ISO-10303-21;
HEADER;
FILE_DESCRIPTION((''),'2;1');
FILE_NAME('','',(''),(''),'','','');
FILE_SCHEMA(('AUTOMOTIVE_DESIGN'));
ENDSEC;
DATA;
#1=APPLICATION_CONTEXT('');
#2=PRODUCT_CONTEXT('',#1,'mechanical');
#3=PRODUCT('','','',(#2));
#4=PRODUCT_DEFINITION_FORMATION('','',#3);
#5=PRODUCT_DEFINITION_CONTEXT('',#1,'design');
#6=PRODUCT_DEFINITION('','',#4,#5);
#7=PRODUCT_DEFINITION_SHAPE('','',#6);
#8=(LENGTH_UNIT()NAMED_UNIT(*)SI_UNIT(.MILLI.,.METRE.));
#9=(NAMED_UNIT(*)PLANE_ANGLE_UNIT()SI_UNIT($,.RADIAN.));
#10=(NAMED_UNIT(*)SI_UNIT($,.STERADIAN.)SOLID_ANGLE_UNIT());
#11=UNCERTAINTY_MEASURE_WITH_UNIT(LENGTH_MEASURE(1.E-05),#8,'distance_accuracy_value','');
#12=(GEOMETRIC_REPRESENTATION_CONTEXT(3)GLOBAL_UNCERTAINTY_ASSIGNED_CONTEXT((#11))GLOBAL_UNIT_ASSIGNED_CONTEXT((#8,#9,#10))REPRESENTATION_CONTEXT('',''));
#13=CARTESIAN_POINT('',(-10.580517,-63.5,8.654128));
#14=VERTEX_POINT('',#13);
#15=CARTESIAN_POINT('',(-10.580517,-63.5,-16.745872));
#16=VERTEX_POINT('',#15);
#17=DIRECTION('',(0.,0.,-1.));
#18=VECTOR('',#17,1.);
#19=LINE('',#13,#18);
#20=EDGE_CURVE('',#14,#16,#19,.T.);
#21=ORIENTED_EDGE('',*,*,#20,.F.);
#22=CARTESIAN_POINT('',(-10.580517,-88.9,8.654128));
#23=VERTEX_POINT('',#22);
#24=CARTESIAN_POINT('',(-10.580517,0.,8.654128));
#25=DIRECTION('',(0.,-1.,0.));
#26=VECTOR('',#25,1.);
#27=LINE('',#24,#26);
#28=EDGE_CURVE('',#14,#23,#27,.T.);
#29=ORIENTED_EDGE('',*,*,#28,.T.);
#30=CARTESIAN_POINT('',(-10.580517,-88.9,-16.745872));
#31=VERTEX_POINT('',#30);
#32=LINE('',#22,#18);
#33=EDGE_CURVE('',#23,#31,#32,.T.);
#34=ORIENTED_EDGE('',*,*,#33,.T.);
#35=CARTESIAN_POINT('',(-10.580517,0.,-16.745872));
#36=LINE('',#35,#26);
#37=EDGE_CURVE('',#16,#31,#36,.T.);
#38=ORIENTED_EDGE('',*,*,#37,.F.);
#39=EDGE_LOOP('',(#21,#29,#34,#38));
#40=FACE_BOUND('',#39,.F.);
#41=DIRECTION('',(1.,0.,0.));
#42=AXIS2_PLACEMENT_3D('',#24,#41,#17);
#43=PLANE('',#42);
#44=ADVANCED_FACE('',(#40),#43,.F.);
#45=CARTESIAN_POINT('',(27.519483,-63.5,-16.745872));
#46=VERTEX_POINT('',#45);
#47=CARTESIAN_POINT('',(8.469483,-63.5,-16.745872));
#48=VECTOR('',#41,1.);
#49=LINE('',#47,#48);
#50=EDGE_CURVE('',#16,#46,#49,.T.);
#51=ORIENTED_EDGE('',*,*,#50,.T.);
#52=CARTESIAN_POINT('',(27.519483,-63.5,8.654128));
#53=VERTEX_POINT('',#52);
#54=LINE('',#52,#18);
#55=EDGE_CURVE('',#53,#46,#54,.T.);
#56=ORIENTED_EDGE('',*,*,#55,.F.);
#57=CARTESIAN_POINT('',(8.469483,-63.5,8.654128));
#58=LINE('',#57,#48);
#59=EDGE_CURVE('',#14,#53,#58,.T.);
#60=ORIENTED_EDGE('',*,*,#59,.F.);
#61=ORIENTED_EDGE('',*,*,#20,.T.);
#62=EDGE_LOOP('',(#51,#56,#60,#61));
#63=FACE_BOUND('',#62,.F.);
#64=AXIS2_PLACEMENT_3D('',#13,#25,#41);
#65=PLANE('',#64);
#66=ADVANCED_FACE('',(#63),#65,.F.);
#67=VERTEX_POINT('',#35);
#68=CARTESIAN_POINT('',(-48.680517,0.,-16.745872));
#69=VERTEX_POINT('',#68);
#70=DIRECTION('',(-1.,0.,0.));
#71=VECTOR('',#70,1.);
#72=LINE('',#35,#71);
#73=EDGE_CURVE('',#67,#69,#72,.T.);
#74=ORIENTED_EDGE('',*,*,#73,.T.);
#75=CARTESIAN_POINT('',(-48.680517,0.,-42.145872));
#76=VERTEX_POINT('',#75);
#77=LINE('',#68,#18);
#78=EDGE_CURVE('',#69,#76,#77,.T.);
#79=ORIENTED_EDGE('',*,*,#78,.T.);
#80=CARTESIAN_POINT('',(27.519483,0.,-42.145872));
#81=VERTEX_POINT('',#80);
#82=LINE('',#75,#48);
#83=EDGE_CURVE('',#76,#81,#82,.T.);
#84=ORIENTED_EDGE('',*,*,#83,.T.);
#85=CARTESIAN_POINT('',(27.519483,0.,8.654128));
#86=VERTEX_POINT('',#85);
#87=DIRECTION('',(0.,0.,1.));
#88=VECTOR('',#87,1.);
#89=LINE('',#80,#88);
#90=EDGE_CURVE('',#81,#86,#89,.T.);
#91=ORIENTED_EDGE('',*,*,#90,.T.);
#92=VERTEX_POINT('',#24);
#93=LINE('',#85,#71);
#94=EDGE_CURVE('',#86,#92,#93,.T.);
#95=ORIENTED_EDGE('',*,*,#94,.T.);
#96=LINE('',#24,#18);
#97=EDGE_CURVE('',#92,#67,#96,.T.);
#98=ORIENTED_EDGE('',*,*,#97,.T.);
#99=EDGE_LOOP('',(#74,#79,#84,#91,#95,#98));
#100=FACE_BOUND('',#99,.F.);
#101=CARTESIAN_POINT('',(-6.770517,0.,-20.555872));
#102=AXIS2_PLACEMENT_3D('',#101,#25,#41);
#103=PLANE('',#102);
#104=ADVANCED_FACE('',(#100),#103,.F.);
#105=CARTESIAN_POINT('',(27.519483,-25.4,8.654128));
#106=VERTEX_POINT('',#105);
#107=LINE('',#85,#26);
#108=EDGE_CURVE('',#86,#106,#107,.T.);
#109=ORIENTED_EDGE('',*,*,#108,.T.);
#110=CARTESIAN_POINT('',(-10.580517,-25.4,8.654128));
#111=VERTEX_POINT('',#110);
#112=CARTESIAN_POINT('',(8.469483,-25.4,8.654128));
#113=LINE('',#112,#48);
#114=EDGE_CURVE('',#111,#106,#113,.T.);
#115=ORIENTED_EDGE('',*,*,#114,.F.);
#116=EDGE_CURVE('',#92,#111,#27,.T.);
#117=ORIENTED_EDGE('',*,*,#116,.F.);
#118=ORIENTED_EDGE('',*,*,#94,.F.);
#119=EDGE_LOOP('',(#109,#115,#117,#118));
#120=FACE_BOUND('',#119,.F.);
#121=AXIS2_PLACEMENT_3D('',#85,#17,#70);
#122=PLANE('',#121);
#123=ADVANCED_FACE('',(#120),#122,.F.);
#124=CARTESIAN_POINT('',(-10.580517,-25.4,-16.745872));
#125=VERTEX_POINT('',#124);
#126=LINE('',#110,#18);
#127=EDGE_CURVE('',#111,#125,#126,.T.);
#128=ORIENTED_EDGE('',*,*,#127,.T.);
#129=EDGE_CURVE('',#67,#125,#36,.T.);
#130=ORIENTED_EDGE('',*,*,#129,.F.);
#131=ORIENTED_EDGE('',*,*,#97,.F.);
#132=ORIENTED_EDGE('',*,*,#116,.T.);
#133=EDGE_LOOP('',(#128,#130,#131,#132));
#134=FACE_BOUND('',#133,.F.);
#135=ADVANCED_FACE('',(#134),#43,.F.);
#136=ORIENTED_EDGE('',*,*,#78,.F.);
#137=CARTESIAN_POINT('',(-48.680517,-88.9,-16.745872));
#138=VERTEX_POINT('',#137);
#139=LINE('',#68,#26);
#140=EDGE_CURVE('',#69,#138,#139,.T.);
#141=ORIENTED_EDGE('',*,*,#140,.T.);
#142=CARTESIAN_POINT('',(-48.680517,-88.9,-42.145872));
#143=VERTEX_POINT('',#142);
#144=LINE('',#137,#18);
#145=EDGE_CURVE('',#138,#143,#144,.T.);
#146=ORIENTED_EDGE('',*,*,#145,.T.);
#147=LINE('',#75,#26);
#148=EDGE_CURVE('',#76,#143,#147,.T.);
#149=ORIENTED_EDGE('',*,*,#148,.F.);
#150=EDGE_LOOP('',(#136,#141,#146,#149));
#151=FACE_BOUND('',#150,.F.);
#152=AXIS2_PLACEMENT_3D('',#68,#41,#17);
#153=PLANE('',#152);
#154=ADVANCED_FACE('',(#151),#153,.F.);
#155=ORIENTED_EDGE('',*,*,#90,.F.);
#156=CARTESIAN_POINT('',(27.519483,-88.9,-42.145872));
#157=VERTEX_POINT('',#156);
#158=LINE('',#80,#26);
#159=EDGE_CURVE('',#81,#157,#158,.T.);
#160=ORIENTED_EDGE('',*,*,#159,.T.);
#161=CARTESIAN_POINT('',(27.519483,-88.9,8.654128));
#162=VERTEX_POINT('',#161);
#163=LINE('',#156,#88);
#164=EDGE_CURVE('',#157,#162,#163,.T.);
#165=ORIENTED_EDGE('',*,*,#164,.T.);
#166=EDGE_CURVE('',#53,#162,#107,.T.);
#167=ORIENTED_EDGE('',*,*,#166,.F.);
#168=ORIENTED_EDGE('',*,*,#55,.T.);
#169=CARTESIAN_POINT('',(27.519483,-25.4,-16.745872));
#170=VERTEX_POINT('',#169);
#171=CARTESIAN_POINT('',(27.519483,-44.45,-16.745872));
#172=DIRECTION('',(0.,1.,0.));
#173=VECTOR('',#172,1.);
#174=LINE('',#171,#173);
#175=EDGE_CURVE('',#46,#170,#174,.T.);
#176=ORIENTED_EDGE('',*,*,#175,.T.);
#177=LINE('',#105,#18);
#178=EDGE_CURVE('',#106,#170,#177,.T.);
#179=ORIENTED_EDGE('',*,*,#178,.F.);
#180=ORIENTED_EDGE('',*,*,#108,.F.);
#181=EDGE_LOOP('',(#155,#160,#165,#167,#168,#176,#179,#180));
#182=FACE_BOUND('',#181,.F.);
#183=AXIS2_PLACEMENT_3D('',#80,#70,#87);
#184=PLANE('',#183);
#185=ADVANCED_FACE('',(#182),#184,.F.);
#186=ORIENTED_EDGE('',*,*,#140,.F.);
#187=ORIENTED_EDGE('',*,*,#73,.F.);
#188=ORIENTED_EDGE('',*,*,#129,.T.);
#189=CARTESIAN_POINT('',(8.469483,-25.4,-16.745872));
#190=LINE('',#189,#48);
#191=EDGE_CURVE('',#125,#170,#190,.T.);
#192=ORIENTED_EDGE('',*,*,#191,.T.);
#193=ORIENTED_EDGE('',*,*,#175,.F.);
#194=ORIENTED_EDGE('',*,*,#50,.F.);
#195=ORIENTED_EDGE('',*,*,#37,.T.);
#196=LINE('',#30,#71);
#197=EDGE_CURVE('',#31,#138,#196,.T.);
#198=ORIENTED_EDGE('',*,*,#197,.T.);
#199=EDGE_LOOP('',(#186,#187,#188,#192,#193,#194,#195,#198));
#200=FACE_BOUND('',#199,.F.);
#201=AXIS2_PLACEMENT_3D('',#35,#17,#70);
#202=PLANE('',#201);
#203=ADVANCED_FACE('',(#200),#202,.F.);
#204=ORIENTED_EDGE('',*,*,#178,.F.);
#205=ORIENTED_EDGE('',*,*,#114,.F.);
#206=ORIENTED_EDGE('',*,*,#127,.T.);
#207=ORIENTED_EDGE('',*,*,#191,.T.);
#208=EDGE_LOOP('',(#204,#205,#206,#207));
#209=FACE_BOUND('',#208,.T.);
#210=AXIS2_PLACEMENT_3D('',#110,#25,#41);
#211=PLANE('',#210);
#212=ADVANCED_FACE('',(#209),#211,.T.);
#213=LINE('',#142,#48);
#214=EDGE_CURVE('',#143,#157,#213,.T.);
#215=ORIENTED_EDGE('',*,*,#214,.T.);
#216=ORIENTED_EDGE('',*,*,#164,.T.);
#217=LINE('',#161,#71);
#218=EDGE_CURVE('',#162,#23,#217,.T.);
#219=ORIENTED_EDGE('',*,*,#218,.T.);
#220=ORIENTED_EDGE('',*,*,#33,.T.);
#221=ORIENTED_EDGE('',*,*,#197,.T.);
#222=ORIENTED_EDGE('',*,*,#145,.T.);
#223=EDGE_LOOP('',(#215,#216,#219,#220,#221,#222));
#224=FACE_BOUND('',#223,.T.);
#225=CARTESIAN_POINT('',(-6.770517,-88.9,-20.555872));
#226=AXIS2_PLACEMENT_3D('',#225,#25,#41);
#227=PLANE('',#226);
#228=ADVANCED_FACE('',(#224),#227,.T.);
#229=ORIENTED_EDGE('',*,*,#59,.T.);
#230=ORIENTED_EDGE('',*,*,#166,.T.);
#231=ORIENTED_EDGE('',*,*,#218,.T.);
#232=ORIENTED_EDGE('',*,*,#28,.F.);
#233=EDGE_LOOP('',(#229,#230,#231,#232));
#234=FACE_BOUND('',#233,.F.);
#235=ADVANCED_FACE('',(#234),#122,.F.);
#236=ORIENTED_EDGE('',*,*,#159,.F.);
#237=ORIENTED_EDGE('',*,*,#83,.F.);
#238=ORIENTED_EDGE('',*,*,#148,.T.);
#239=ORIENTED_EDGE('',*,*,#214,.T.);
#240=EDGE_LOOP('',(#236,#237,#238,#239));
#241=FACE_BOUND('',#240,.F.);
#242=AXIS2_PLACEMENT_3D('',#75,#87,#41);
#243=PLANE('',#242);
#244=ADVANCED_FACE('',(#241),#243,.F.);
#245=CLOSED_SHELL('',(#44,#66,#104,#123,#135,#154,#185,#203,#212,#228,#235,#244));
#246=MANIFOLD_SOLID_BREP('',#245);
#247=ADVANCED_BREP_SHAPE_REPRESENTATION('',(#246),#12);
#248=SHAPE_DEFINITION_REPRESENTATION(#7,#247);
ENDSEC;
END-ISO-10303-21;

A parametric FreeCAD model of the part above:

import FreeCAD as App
import Part
import Sketcher
from FreeCAD import Vector
Q = App.Units.Quantity

doc = App.newDocument("Part")
params = doc.addObject("Spreadsheet::Sheet", "Params")
for row, (alias, value) in enumerate([
    ("sketch1_width", "3 in"),
    ("sketch1_height", "1 in"),
    ("pad1_length", "3.5 in"),
    ("sketch2_width", "1.5 in"),
    ("pocket1_length", "1 in"),
], start=1):
    params.set(f"A{row}", alias)
    params.set(f"B{row}", "=" + value)
    params.setAlias(f"B{row}", alias)

body = doc.addObject("PartDesign::Body", "Body")

sketch1 = body.newObject("Sketcher::SketchObject", "Sketch")
sketch1.AttachmentSupport = (doc.getObject("XZ_Plane"), [""])
sketch1.MapMode = "FlatFace"
sketch1.addGeometry(Part.LineSegment(Vector(-49, -17, 0), Vector(-49, -42, 0)), False)
sketch1.addGeometry(Part.LineSegment(Vector(-49, -42, 0), Vector(28, -42, 0)), False)
sketch1.addGeometry(Part.LineSegment(Vector(28, -42, 0), Vector(28, 9, 0)), False)
sketch1.addGeometry(Part.LineSegment(Vector(28, 9, 0), Vector(-11, 9, 0)), False)
sketch1.addGeometry(Part.LineSegment(Vector(-11, 9, 0), Vector(-11, -17, 0)), False)
sketch1.addGeometry(Part.LineSegment(Vector(-11, -17, 0), Vector(-49, -17, 0)), False)
sketch1.addConstraint(Sketcher.Constraint("Coincident", 0, 2, 1, 1))
sketch1.addConstraint(Sketcher.Constraint("Coincident", 1, 2, 2, 1))
sketch1.addConstraint(Sketcher.Constraint("Coincident", 2, 2, 3, 1))
sketch1.addConstraint(Sketcher.Constraint("Coincident", 3, 2, 4, 1))
sketch1.addConstraint(Sketcher.Constraint("Coincident", 4, 2, 5, 1))
sketch1.addConstraint(Sketcher.Constraint("Coincident", 5, 2, 0, 1))
sketch1.addConstraint(Sketcher.Constraint("Vertical", 0))
sketch1.addConstraint(Sketcher.Constraint("Horizontal", 1))
sketch1.addConstraint(Sketcher.Constraint("Vertical", 2))
sketch1.addConstraint(Sketcher.Constraint("Horizontal", 3))
sketch1.addConstraint(Sketcher.Constraint("Vertical", 4))
sketch1.addConstraint(Sketcher.Constraint("Horizontal", 5))
sketch1.addConstraint(Sketcher.Constraint("Equal", 3, 5))
sketch1.addConstraint(Sketcher.Constraint("Equal", 0, 4))
sketch1.addConstraint(Sketcher.Constraint("DistanceX", 1, 1, 1, 2, Q("3 in")))
sketch1.addConstraint(Sketcher.Constraint("DistanceY", 0, 2, 0, 1, Q("1 in")))
sketch1.addConstraint(Sketcher.Constraint("DistanceY", 0, 2, -1, 1, 42.145872))
sketch1.addConstraint(Sketcher.Constraint("DistanceX", 0, 2, -1, 1, 48.680517))
sketch1.setExpression("Constraints[14]", "Params.sketch1_width")
sketch1.setExpression("Constraints[15]", "Params.sketch1_height")
pad1 = body.newObject("PartDesign::Pad", "Pad")
pad1.Profile = sketch1
pad1.setExpression("Length", "Params.pad1_length")

sketch2 = body.newObject("Sketcher::SketchObject", "Sketch001")
sketch2.AttachmentSupport = (doc.getObject("XY_Plane"), [""])
sketch2.MapMode = "FlatFace"
sketch2.AttachmentOffset = App.Placement(Vector(0, 0, 8.654128), App.Rotation())
sketch2.addGeometry(Part.LineSegment(Vector(-11, -25, 0), Vector(-11, -64, 0)), False)
sketch2.addGeometry(Part.LineSegment(Vector(-11, -64, 0), Vector(28, -64, 0)), False)
sketch2.addGeometry(Part.LineSegment(Vector(28, -64, 0), Vector(28, -25, 0)), False)
sketch2.addGeometry(Part.LineSegment(Vector(28, -25, 0), Vector(-11, -25, 0)), False)
sketch2.addConstraint(Sketcher.Constraint("Coincident", 0, 2, 1, 1))
sketch2.addConstraint(Sketcher.Constraint("Coincident", 1, 2, 2, 1))
sketch2.addConstraint(Sketcher.Constraint("Coincident", 2, 2, 3, 1))
sketch2.addConstraint(Sketcher.Constraint("Coincident", 3, 2, 0, 1))
sketch2.addConstraint(Sketcher.Constraint("Vertical", 0))
sketch2.addConstraint(Sketcher.Constraint("Horizontal", 1))
sketch2.addConstraint(Sketcher.Constraint("Vertical", 2))
sketch2.addConstraint(Sketcher.Constraint("Horizontal", 3))
sketch2.addConstraint(Sketcher.Constraint("Equal", 3, 0))
sketch2.addConstraint(Sketcher.Constraint("DistanceX", 1, 1, 1, 2, Q("1.5 in")))
sketch2.addConstraint(Sketcher.Constraint("DistanceY", 2, 2, -1, 1, Q("1 in")))
sketch2.addConstraint(Sketcher.Constraint("DistanceX", 0, 2, -1, 1, 10.580517))
sketch2.setExpression("Constraints[9]", "Params.sketch2_width")
pocket1 = body.newObject("PartDesign::Pocket", "Pocket")
pocket1.Profile = sketch2
pocket1.setExpression("Length", "Params.pocket1_length")

doc.recompute()
